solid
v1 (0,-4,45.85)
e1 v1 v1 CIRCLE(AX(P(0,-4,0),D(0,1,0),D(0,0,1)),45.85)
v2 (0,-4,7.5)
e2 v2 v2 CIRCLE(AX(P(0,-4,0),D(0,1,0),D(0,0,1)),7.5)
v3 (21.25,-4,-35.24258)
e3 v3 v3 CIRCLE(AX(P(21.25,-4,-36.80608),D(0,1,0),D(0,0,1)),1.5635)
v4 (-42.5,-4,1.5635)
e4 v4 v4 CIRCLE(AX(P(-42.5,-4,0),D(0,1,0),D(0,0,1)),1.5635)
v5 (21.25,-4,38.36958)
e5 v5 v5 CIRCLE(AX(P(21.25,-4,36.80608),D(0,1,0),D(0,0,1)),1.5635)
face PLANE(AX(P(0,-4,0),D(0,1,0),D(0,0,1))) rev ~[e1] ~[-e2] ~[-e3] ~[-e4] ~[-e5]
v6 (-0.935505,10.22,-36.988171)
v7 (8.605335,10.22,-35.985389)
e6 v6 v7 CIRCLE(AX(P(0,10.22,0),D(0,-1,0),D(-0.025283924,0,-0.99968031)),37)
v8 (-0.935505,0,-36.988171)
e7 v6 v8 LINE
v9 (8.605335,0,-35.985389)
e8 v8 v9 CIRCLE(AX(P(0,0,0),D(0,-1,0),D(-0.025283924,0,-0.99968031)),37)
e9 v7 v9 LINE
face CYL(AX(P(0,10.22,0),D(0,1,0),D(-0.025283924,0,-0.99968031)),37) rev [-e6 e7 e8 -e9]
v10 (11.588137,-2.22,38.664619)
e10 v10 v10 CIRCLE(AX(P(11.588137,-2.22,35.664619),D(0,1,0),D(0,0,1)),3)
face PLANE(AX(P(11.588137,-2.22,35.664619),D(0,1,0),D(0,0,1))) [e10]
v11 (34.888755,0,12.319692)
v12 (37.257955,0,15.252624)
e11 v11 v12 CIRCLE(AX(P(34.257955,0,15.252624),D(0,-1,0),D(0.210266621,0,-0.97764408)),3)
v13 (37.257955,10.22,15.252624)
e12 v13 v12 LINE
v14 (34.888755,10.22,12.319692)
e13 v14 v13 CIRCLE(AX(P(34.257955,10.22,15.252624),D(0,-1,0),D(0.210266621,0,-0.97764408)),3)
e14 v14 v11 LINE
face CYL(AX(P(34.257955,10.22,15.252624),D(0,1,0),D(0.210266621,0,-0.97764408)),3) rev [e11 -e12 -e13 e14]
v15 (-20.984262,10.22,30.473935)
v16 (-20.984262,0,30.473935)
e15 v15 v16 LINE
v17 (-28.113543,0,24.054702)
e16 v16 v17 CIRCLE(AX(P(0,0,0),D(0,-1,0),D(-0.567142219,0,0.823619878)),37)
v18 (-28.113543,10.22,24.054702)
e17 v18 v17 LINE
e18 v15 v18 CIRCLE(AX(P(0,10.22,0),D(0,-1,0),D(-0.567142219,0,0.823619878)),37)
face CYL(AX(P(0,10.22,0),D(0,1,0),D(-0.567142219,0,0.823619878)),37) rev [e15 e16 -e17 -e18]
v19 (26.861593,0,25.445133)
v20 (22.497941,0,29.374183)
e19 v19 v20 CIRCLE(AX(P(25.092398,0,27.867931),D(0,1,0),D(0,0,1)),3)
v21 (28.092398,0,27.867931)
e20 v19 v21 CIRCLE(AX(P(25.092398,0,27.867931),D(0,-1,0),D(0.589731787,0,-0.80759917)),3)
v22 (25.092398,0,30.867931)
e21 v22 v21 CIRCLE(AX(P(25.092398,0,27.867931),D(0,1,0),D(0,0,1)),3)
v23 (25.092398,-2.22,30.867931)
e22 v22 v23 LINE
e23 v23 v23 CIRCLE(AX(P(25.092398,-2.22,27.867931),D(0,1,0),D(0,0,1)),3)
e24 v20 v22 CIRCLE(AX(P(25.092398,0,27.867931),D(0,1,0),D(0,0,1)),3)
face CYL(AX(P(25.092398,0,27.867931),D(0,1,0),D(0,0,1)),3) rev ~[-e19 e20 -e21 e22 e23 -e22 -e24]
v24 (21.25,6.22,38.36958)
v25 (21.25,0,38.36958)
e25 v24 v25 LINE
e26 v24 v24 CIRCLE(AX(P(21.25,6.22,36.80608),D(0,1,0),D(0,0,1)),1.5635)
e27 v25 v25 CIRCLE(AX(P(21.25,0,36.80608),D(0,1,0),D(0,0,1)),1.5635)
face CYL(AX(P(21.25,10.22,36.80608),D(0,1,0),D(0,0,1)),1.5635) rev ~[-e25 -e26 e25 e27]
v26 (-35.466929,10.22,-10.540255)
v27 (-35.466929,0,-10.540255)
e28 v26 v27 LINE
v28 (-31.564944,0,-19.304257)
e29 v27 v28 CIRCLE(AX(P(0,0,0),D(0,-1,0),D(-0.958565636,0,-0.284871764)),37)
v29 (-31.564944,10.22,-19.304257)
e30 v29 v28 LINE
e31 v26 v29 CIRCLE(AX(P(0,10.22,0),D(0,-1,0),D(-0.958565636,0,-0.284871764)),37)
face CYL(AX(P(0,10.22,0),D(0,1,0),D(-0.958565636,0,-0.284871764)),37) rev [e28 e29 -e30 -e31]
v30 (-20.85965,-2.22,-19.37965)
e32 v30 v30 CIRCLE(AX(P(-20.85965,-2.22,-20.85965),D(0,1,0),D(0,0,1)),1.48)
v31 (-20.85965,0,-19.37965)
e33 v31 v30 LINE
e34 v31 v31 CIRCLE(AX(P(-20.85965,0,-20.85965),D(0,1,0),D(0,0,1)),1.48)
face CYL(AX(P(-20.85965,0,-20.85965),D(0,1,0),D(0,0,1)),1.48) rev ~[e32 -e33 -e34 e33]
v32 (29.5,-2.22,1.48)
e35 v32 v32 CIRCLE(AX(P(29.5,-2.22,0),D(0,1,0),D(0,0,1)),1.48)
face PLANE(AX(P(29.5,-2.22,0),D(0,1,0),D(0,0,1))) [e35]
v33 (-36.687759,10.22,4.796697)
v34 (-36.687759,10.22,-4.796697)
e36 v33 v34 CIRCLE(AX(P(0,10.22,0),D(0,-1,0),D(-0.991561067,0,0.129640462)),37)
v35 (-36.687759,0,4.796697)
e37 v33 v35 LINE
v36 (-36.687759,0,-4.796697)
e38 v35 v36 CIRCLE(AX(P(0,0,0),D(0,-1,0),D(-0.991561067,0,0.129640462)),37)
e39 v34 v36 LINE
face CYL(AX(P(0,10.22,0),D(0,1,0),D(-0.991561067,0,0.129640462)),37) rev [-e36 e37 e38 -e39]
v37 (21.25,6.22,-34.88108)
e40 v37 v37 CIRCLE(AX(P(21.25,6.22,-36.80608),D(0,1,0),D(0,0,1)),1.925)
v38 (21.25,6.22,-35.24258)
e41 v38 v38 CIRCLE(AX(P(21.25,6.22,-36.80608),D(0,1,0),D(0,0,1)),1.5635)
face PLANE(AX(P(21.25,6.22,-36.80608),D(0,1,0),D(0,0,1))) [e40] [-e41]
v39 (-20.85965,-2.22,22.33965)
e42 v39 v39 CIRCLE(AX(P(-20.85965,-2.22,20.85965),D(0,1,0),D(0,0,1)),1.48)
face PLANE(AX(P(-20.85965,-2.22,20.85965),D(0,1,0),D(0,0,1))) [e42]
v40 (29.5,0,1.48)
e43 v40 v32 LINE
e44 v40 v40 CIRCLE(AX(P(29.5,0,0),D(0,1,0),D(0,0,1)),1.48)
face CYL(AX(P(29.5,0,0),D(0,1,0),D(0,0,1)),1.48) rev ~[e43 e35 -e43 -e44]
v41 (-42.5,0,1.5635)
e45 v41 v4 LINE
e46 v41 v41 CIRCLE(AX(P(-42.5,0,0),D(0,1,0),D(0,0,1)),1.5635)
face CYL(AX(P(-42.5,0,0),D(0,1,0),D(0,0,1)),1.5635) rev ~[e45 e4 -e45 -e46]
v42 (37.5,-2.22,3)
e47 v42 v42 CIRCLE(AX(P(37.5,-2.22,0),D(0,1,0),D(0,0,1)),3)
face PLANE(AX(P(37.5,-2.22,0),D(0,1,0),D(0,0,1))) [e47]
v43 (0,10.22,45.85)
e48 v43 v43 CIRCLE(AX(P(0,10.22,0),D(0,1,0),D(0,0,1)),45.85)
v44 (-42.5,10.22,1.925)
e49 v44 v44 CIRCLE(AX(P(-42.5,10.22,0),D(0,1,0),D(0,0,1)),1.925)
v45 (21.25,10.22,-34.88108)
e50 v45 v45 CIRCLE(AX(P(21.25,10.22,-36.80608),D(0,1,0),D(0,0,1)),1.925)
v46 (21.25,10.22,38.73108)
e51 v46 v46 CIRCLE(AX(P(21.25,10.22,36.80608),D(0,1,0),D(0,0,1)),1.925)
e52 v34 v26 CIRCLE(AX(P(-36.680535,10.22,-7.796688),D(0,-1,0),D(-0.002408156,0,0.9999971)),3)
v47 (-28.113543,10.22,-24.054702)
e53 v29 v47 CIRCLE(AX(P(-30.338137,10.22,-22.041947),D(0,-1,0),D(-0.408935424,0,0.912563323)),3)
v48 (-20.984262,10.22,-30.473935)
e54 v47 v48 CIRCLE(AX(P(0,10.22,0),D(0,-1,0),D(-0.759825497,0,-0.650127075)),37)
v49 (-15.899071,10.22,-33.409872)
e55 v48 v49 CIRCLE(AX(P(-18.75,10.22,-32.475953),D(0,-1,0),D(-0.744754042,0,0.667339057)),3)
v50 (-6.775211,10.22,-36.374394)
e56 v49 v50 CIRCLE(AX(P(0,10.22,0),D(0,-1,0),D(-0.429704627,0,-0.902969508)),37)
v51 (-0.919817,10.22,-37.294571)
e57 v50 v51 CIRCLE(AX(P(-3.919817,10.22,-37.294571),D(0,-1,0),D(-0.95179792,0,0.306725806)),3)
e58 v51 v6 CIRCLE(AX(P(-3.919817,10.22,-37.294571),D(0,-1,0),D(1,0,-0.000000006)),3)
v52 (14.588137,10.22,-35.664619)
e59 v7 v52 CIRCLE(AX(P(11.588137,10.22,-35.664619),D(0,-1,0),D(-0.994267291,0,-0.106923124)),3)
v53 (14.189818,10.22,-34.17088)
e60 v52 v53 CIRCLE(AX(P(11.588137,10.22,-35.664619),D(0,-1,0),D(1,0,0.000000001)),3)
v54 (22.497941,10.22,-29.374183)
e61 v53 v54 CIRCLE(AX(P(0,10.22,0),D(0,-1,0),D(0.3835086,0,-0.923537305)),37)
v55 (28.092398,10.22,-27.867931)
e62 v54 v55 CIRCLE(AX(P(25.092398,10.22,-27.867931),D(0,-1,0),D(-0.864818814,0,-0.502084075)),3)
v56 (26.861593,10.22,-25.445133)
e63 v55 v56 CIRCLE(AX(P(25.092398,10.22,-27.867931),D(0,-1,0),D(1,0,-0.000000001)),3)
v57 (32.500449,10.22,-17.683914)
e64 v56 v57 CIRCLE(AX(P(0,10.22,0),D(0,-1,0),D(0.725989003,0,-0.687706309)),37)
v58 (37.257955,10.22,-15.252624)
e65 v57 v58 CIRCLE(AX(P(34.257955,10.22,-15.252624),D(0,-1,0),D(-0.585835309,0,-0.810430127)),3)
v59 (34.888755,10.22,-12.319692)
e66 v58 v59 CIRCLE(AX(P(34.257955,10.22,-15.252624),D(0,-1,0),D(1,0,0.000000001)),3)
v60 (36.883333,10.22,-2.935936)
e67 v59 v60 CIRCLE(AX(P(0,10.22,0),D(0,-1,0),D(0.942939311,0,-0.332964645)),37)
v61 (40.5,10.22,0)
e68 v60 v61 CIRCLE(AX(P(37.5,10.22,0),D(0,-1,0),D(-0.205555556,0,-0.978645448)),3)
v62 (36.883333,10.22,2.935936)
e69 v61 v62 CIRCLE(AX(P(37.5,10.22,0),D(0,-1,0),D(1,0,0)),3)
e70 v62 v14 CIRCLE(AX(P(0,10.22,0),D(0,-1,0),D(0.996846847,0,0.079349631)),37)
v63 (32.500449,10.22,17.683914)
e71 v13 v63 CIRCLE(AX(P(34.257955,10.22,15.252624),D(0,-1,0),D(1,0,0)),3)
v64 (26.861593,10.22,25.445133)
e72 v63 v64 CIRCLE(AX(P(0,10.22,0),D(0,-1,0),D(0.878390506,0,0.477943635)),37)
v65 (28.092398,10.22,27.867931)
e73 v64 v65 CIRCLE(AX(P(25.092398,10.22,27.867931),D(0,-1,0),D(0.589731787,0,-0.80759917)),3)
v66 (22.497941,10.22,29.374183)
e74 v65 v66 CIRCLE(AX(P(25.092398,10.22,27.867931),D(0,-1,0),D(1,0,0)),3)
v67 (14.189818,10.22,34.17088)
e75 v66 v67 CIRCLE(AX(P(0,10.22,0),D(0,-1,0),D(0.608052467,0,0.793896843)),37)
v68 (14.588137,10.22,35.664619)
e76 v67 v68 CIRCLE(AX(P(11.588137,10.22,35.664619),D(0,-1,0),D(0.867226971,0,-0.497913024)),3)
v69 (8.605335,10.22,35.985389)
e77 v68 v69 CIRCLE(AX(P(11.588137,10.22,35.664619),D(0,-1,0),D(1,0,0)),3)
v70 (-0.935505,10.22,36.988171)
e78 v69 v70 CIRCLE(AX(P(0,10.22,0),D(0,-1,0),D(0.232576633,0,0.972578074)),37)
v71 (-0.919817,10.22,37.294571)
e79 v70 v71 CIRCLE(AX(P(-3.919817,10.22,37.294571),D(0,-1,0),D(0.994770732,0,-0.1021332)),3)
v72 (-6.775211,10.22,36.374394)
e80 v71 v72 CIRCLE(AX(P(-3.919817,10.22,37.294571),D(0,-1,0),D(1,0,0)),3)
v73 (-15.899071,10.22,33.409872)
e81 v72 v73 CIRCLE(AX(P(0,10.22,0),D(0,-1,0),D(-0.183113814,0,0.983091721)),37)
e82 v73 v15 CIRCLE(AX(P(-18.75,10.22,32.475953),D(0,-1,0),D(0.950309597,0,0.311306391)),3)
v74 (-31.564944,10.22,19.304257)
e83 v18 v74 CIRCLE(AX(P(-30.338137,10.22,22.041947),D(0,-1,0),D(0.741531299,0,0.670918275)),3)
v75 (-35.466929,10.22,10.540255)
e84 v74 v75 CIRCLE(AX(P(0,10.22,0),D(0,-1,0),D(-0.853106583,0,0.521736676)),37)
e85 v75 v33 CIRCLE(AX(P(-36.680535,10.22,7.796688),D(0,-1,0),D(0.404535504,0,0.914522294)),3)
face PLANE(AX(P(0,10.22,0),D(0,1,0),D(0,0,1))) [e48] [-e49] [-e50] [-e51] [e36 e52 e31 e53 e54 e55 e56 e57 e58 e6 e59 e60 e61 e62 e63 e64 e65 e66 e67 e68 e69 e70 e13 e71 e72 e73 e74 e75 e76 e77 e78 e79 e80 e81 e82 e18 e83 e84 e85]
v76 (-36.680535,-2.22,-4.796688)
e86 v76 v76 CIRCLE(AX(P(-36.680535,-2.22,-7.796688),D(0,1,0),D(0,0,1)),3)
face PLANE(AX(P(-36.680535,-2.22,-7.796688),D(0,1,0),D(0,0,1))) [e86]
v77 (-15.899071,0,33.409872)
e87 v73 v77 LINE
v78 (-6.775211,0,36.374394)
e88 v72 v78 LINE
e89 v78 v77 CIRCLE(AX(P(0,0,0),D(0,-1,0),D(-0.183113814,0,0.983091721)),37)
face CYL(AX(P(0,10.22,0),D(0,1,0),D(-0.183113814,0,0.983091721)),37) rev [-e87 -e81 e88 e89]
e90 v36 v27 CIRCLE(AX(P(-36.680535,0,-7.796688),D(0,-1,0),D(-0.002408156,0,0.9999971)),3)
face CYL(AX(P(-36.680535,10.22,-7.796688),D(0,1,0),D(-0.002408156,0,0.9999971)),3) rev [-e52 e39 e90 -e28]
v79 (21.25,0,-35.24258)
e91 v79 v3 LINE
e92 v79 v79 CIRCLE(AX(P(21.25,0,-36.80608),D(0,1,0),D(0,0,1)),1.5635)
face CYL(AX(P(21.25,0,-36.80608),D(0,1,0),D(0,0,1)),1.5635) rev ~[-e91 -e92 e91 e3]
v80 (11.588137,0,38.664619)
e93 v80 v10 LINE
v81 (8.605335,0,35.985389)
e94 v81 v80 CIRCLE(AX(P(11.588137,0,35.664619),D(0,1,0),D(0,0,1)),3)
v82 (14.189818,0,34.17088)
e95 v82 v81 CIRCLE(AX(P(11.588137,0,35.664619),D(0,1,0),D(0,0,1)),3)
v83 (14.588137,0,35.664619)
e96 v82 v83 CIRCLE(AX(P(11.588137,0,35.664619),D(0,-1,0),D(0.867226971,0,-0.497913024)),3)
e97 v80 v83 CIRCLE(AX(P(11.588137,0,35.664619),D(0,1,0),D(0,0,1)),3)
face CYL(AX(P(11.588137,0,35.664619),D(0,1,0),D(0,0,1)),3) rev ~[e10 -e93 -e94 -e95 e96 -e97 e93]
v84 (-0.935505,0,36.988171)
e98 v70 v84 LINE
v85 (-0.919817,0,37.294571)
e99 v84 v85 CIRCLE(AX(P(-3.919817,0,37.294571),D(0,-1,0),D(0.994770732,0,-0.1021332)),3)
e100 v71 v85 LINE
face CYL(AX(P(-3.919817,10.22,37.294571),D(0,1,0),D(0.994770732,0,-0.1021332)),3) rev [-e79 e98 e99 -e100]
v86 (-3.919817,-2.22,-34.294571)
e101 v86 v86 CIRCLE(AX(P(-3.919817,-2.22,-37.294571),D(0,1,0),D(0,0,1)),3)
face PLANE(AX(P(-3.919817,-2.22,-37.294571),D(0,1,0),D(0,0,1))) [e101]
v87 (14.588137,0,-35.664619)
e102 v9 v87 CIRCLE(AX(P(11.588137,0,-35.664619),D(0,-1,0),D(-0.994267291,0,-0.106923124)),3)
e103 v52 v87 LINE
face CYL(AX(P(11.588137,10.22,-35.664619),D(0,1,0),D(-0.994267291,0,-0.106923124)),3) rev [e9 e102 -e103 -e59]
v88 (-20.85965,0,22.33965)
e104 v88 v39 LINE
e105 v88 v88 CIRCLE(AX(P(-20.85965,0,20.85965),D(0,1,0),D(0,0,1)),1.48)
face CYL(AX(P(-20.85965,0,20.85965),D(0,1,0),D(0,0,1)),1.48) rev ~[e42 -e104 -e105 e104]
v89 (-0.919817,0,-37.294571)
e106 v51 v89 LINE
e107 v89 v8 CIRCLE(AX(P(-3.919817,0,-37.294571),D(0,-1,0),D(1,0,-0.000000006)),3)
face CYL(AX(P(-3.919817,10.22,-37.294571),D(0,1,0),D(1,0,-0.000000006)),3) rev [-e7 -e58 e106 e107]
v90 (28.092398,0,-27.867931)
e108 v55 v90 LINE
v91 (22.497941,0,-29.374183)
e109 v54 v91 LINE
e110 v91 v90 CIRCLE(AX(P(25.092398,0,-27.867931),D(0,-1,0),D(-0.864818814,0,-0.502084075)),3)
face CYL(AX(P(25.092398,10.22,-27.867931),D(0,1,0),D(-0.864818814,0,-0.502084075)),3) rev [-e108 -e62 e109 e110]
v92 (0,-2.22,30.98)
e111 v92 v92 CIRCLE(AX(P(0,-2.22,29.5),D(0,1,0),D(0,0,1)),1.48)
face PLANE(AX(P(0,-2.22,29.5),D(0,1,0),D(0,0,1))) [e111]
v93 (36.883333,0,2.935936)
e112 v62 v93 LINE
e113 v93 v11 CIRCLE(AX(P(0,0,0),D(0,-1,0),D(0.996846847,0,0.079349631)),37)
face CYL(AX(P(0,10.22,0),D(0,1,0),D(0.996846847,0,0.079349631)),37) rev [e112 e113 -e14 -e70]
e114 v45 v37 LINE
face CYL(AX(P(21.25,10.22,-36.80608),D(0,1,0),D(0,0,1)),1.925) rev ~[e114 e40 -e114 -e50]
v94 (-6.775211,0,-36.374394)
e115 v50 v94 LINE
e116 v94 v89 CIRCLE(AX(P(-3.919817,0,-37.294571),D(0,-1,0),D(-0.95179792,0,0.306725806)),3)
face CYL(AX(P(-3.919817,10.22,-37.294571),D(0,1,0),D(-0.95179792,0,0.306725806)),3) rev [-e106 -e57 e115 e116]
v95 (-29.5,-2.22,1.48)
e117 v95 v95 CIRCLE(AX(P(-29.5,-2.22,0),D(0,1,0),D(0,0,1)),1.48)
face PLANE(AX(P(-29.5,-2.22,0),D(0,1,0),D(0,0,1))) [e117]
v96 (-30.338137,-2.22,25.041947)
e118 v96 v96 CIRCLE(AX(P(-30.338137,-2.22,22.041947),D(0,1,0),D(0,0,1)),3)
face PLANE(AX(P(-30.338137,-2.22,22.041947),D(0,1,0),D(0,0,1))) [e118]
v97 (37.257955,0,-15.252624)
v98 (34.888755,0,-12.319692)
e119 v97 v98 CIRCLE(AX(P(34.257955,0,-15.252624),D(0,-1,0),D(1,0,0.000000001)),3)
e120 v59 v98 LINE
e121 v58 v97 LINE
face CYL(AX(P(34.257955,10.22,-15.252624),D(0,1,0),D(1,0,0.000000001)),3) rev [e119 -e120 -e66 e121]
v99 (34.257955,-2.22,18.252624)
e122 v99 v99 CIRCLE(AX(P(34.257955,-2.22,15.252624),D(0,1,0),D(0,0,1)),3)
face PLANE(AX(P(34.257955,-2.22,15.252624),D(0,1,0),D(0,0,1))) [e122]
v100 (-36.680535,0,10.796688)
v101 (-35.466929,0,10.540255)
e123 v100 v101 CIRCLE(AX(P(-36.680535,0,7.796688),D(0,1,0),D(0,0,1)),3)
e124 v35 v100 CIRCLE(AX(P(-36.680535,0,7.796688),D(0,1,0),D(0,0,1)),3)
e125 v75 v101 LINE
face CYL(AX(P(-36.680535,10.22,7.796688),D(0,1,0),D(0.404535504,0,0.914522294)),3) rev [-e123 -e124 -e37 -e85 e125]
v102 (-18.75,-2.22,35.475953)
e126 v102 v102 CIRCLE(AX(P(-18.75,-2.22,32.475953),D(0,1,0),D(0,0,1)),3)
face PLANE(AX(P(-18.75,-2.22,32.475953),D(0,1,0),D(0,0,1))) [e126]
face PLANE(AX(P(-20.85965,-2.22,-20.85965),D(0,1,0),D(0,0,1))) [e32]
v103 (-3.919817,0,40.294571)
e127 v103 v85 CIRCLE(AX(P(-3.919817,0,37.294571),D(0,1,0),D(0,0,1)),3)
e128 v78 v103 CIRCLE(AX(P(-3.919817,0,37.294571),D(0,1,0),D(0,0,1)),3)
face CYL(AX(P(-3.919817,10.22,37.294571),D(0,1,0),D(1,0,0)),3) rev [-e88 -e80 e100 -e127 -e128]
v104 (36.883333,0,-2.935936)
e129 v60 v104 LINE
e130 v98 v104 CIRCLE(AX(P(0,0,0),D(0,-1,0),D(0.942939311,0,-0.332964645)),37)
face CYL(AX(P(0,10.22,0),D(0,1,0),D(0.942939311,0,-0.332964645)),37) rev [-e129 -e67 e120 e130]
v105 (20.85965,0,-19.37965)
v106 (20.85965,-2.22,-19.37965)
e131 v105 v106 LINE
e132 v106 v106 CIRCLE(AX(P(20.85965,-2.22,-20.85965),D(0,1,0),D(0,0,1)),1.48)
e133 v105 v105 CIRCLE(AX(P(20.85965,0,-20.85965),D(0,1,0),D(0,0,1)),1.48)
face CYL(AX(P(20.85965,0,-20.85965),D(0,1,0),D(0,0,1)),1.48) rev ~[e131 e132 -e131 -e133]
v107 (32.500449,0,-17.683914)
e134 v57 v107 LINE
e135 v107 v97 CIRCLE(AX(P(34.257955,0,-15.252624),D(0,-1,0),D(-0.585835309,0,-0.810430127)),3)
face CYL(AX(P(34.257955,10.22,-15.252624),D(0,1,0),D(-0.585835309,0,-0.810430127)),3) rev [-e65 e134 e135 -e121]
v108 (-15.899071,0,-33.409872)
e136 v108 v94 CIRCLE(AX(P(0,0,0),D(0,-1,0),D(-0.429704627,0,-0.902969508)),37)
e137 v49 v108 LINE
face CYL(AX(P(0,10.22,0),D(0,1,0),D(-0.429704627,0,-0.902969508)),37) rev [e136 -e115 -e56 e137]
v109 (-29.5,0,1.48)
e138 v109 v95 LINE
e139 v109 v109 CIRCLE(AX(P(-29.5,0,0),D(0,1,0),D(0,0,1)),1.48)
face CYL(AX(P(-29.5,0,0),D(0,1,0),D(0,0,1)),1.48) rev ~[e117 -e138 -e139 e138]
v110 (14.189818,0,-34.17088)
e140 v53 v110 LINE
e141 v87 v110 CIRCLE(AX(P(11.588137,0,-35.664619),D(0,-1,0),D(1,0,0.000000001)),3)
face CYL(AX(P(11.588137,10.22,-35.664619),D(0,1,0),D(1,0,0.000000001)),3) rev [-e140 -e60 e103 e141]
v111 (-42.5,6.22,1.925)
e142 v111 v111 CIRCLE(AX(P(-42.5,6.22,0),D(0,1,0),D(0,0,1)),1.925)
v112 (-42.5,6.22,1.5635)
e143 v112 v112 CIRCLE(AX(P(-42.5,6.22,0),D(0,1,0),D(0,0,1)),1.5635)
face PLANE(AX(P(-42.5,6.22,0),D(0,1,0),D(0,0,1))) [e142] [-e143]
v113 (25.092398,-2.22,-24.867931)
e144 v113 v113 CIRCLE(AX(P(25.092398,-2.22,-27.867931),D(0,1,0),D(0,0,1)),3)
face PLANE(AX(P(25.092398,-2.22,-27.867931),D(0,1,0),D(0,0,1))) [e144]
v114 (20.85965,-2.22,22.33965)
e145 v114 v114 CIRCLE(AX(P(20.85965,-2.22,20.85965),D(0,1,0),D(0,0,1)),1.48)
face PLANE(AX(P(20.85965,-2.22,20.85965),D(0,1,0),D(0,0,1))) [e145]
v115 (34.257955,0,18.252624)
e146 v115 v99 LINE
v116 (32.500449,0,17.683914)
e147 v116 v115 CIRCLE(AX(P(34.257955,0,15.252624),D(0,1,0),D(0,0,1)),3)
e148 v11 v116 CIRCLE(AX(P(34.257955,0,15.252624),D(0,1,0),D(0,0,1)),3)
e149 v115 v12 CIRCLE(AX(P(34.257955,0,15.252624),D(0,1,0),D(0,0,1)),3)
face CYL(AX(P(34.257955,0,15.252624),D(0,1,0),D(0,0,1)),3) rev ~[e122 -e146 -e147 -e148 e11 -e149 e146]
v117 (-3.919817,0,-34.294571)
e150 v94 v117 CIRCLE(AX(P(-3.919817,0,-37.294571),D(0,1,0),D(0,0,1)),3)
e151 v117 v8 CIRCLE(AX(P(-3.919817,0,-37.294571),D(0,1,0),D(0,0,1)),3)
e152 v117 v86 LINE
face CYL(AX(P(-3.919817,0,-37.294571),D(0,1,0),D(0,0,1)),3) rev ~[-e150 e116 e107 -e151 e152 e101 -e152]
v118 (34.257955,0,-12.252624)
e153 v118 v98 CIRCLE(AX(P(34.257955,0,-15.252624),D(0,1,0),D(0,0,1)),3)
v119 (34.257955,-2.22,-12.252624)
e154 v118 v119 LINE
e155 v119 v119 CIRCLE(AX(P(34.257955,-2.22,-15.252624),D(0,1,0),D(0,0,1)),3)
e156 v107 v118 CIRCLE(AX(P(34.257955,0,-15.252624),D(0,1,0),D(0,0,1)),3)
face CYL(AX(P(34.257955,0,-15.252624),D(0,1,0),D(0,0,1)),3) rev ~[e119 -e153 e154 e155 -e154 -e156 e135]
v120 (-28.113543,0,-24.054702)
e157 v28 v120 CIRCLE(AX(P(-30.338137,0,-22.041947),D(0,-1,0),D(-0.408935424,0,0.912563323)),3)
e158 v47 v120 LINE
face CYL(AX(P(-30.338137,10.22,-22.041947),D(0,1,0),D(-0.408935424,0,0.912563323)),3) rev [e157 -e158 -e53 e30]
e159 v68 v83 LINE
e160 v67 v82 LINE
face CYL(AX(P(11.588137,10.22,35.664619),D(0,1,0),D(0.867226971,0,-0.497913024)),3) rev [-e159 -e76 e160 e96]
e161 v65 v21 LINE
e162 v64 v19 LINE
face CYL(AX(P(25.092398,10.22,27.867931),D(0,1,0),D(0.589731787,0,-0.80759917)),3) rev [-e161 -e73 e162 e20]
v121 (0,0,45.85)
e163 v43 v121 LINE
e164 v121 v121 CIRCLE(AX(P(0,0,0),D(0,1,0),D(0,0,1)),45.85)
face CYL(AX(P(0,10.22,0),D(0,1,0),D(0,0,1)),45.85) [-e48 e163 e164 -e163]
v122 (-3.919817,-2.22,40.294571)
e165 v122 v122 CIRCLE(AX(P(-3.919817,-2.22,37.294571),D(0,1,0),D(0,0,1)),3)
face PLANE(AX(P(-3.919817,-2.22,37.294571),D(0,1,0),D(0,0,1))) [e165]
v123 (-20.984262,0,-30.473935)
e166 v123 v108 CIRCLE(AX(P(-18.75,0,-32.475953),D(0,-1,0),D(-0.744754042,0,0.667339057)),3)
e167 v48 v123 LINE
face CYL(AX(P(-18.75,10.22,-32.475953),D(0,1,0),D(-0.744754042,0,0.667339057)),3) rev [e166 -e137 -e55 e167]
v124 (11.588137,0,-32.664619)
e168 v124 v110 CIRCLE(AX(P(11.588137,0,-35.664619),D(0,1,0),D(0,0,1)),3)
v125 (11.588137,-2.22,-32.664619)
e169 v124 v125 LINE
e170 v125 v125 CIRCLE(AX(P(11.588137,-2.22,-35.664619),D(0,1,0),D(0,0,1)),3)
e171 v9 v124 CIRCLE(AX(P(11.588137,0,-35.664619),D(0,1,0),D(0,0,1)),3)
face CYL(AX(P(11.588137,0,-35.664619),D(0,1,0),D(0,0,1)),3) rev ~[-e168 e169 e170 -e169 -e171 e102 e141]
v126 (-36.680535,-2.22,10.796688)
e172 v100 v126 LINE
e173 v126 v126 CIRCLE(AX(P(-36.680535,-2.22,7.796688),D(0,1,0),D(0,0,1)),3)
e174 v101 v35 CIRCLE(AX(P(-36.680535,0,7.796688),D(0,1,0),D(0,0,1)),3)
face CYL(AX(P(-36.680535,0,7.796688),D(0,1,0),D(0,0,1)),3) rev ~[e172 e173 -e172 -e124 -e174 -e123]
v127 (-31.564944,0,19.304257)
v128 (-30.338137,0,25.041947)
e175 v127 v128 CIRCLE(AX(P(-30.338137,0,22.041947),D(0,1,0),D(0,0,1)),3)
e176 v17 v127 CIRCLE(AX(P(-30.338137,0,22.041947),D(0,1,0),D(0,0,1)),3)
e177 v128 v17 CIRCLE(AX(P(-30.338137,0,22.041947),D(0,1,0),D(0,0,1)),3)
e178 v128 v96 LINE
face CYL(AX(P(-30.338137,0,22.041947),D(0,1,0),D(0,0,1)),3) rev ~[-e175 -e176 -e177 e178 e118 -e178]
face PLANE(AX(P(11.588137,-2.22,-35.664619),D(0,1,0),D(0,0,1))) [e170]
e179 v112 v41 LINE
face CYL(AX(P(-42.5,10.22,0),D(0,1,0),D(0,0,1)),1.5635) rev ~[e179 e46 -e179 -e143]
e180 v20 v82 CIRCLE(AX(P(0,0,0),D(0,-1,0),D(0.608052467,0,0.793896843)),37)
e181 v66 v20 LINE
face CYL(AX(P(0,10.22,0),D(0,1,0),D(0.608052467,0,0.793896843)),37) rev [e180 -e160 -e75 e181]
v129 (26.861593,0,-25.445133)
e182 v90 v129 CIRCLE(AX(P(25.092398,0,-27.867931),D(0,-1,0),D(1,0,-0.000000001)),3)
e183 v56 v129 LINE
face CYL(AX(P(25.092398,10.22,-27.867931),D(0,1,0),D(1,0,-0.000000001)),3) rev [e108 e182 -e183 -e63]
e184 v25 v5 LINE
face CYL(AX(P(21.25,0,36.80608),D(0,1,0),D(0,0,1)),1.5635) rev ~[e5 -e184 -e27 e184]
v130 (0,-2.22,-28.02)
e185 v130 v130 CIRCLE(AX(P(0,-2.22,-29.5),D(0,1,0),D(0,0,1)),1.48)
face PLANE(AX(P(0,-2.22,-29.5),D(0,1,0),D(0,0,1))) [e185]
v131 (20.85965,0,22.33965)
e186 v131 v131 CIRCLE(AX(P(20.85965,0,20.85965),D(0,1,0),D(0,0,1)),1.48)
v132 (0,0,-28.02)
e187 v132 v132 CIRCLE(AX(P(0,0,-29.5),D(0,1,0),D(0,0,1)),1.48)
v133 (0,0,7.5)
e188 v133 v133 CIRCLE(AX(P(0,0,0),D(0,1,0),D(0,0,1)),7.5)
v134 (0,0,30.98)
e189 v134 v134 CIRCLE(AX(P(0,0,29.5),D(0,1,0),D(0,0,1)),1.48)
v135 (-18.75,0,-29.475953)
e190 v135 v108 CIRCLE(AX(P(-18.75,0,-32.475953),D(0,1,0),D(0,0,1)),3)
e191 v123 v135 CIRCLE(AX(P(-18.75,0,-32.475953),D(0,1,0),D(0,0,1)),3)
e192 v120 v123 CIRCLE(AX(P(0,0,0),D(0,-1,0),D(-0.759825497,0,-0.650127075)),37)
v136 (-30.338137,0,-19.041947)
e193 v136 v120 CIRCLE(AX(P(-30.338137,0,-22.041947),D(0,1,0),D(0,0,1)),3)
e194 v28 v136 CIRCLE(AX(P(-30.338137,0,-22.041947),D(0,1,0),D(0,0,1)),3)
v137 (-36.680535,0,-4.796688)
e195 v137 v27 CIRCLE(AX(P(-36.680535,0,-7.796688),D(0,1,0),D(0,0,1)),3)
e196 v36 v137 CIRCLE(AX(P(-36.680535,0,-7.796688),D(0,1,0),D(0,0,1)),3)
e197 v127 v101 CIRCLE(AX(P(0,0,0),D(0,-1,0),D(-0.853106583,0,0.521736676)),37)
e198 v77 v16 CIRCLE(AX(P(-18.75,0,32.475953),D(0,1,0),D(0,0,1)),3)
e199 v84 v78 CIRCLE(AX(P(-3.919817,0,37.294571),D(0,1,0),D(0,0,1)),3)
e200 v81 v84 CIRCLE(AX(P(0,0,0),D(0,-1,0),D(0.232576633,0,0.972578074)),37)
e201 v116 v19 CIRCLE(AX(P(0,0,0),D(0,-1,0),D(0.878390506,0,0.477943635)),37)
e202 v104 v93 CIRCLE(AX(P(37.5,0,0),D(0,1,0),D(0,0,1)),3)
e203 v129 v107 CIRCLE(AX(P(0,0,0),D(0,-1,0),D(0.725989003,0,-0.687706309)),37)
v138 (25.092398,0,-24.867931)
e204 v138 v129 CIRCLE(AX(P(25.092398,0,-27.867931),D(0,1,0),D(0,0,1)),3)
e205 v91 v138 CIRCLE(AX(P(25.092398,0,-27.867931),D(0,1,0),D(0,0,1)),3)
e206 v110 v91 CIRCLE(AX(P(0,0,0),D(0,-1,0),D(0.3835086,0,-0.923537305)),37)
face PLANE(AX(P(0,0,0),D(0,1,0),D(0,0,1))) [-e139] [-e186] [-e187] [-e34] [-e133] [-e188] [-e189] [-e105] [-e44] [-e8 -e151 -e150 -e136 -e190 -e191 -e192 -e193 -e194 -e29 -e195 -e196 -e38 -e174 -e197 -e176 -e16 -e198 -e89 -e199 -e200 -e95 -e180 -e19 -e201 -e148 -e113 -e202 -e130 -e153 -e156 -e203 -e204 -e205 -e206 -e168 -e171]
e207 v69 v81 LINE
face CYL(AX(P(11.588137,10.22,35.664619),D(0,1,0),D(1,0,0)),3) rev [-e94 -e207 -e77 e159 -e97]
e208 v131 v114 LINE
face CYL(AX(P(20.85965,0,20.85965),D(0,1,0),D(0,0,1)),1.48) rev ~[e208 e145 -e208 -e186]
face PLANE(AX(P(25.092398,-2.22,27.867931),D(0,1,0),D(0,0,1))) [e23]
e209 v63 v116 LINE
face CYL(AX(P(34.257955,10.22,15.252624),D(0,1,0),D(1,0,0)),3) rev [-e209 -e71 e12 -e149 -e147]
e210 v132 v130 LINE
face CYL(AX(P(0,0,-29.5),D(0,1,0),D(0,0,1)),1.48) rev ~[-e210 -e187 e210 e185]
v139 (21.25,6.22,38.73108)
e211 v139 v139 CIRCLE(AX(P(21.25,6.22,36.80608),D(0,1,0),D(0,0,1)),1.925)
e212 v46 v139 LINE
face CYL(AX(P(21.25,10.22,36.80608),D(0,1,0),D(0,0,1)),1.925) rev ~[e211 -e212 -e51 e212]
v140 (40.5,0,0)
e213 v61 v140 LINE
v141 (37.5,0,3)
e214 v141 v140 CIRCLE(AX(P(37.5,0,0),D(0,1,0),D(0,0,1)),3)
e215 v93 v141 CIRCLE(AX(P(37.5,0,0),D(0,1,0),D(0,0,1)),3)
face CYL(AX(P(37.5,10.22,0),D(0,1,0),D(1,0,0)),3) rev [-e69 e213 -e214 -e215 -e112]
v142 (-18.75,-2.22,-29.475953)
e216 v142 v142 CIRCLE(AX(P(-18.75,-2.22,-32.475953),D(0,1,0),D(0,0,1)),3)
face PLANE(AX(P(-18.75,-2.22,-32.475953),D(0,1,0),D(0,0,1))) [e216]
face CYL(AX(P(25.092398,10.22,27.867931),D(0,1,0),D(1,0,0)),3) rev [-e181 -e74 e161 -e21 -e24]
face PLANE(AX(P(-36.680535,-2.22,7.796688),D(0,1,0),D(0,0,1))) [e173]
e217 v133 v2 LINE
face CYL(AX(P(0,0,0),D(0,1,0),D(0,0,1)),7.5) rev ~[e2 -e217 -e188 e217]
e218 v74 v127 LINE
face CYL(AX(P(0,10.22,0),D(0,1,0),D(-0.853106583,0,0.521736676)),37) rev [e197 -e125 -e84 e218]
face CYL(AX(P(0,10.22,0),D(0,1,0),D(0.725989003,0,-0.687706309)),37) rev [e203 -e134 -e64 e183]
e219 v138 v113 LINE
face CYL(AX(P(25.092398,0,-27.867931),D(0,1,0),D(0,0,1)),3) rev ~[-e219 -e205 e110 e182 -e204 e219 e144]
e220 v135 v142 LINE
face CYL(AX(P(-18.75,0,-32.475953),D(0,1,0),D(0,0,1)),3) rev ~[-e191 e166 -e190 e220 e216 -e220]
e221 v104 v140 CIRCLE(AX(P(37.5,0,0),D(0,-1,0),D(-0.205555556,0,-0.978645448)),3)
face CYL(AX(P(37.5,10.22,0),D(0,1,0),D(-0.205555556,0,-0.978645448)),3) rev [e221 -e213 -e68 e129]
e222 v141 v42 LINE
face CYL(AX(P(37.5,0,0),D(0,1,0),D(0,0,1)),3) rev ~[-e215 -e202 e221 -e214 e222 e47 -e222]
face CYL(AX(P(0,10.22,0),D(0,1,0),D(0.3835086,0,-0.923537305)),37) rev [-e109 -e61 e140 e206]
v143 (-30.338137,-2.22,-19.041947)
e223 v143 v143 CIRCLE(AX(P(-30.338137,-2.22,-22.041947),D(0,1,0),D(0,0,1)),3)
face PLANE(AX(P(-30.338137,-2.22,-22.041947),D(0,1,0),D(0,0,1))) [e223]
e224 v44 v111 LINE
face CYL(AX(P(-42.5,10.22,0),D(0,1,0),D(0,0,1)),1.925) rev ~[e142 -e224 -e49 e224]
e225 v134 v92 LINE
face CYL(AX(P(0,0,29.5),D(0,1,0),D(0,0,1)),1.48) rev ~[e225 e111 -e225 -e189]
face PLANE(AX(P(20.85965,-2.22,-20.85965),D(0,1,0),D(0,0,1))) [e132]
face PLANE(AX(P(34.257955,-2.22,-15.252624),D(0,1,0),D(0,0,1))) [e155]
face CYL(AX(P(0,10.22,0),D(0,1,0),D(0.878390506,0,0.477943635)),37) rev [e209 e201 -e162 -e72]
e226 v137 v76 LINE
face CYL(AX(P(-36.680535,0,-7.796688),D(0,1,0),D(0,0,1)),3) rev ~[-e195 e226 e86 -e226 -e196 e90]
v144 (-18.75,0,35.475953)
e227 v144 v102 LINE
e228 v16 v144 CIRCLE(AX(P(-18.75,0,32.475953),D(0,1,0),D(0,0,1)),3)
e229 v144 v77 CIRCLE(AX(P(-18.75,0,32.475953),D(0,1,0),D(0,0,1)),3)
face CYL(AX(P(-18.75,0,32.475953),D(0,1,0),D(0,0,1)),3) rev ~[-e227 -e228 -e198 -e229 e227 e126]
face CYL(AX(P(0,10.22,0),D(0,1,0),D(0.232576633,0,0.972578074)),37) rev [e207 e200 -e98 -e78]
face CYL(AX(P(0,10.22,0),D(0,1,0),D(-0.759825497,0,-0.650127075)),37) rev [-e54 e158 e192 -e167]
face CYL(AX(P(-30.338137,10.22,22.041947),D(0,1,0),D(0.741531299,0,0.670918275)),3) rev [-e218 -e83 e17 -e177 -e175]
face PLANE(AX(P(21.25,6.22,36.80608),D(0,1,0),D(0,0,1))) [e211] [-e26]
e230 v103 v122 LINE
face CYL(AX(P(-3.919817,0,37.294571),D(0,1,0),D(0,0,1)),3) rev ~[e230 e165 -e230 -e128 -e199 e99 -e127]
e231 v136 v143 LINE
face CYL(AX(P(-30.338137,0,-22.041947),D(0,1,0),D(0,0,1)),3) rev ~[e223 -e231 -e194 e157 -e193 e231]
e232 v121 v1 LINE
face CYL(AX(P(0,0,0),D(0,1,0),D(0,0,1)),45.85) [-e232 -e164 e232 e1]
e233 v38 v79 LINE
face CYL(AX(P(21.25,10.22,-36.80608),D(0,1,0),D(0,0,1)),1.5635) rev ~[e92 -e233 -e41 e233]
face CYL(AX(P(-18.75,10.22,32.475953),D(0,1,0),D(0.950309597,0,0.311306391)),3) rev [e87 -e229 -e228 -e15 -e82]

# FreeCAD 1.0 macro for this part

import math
import FreeCAD as App
import Part
import Sketcher
from FreeCAD import Vector
Q = App.Units.Quantity

doc = App.newDocument("Part")
body = doc.addObject("PartDesign::Body", "Body")

# Sketch on XZ plane
sketch1 = body.newObject("Sketcher::SketchObject", "Sketch")
sketch1.AttachmentSupport = (doc.getObject("XZ_Plane"), [""])
sketch1.MapMode = "FlatFace"
sketch1.addGeometry([
    Part.Circle(Vector(0, 0, 0), Vector(0, 0, 1), 45.9),  # 0
    Part.Circle(Vector(-42.5, 0, 0), Vector(0, 0, 1), 1.6),  # 1
    Part.Circle(Vector(21.2, -36.8, 0), Vector(0, 0, 1), 1.6),  # 2
    Part.Circle(Vector(0, 0, 0), Vector(0, 0, 1), 7.5),  # 3
    Part.Circle(Vector(21.2, 36.8, 0), Vector(0, 0, 1), 1.6),  # 4
], False)
sketch1.addConstraint([
    Sketcher.Constraint("Coincident", 0, 3, -1, 1),
    Sketcher.Constraint("Coincident", 3, 3, -1, 1),
    Sketcher.Constraint("Equal", 1, 2),
    Sketcher.Constraint("Equal", 2, 4),
    Sketcher.Constraint("Symmetric", 2, 3, 4, 3, -1),
    Sketcher.Constraint("PointOnObject", 1, 3, -1),
    Sketcher.Constraint("Diameter", 3, Q("15 mm")),
    Sketcher.Constraint("Diameter", 0, Q("91.7 mm")),
    Sketcher.Constraint("Diameter", 1, Q("3.127 mm")),
    Sketcher.Constraint("DistanceX", 1, 3, -1, 1, Q("42.5 mm")),
    Sketcher.Constraint("DistanceX", -1, 1, 2, 3, Q("21.25 mm")),
    Sketcher.Constraint("DistanceY", 2, 3, -1, 1, Q("36.80608 mm")),
])
pad1 = body.newObject("PartDesign::Pad", "Pad")
pad1.Profile = sketch1
pad1.Length = 4

# Sketch on XZ plane
sketch2 = body.newObject("Sketcher::SketchObject", "Sketch001")
sketch2.AttachmentSupport = (doc.getObject("XZ_Plane"), [""])
sketch2.MapMode = "FlatFace"
sketch2.addGeometry([
    Part.Circle(Vector(-29.5, 0, 0), Vector(0, 0, 1), 1.5),  # 0
    Part.Circle(Vector(-20.9, -20.9, 0), Vector(0, 0, 1), 1.5),  # 1
    Part.Circle(Vector(0, -29.5, 0), Vector(0, 0, 1), 1.5),  # 2
    Part.Circle(Vector(20.9, -20.9, 0), Vector(0, 0, 1), 1.5),  # 3
    Part.Circle(Vector(29.5, 0, 0), Vector(0, 0, 1), 1.5),  # 4
    Part.Circle(Vector(20.9, 20.9, 0), Vector(0, 0, 1), 1.5),  # 5
    Part.Circle(Vector(0, 29.5, 0), Vector(0, 0, 1), 1.5),  # 6
    Part.Circle(Vector(-20.9, 20.9, 0), Vector(0, 0, 1), 1.5),  # 7
    Part.Circle(Vector(-36.7, -7.8, 0), Vector(0, 0, 1), 3),  # 8
    Part.Circle(Vector(-36.7, 7.8, 0), Vector(0, 0, 1), 3),  # 9
    Part.Circle(Vector(-30.3, -22, 0), Vector(0, 0, 1), 3),  # 10
    Part.Circle(Vector(-30.3, 22, 0), Vector(0, 0, 1), 3),  # 11
    Part.Circle(Vector(-18.8, 32.5, 0), Vector(0, 0, 1), 3),  # 12
    Part.Circle(Vector(-3.9, 37.3, 0), Vector(0, 0, 1), 3),  # 13
    Part.Circle(Vector(11.6, 35.7, 0), Vector(0, 0, 1), 3),  # 14
    Part.Circle(Vector(25.1, 27.9, 0), Vector(0, 0, 1), 3),  # 15
    Part.Circle(Vector(34.3, 15.3, 0), Vector(0, 0, 1), 3),  # 16
    Part.Circle(Vector(37.5, 0, 0), Vector(0, 0, 1), 3),  # 17
    Part.Circle(Vector(34.3, -15.3, 0), Vector(0, 0, 1), 3),  # 18
    Part.Circle(Vector(25.1, -27.9, 0), Vector(0, 0, 1), 3),  # 19
    Part.Circle(Vector(11.6, -35.7, 0), Vector(0, 0, 1), 3),  # 20
    Part.Circle(Vector(-3.9, -37.3, 0), Vector(0, 0, 1), 3),  # 21
    Part.Circle(Vector(-18.8, -32.5, 0), Vector(0, 0, 1), 3),  # 22
], False)
sketch2.addConstraint([
    Sketcher.Constraint("Equal", 0, 1),
    Sketcher.Constraint("Equal", 1, 2),
    Sketcher.Constraint("Equal", 2, 3),
    Sketcher.Constraint("Equal", 3, 4),
    Sketcher.Constraint("Equal", 4, 5),
    Sketcher.Constraint("Equal", 5, 6),
    Sketcher.Constraint("Equal", 6, 7),
    Sketcher.Constraint("Equal", 8, 9),
    Sketcher.Constraint("Equal", 9, 10),
    Sketcher.Constraint("Equal", 10, 11),
    Sketcher.Constraint("Equal", 11, 12),
    Sketcher.Constraint("Equal", 12, 13),
    Sketcher.Constraint("Equal", 13, 14),
    Sketcher.Constraint("Equal", 14, 15),
    Sketcher.Constraint("Equal", 15, 16),
    Sketcher.Constraint("Equal", 16, 17),
    Sketcher.Constraint("Equal", 17, 18),
    Sketcher.Constraint("Equal", 18, 19),
    Sketcher.Constraint("Equal", 19, 20),
    Sketcher.Constraint("Equal", 20, 21),
    Sketcher.Constraint("Equal", 21, 22),
    Sketcher.Constraint("Symmetric", 0, 3, 4, 3, -1, 1),
    Sketcher.Constraint("Symmetric", 1, 3, 5, 3, -1, 1),
    Sketcher.Constraint("Symmetric", 2, 3, 6, 3, -1, 1),
    Sketcher.Constraint("Symmetric", 3, 3, 7, 3, -1, 1),
    Sketcher.Constraint("Symmetric", 1, 3, 3, 3, -2),
    Sketcher.Constraint("Symmetric", 8, 3, 9, 3, -1),
    Sketcher.Constraint("Symmetric", 10, 3, 11, 3, -1),
    Sketcher.Constraint("Symmetric", 16, 3, 18, 3, -1),
    Sketcher.Constraint("Symmetric", 15, 3, 19, 3, -1),
    Sketcher.Constraint("Symmetric", 14, 3, 20, 3, -1),
    Sketcher.Constraint("Symmetric", 13, 3, 21, 3, -1),
    Sketcher.Constraint("Symmetric", 12, 3, 22, 3, -1),
    Sketcher.Constraint("PointOnObject", 0, 3, -1),
    Sketcher.Constraint("PointOnObject", 2, 3, -2),
    Sketcher.Constraint("PointOnObject", 17, 3, -1),
    Sketcher.Constraint("Diameter", 8, Q("6 mm")),
    Sketcher.Constraint("Diameter", 0, Q("2.96 mm")),
    Sketcher.Constraint("DistanceX", 0, 3, 4, 3, Q("59 mm")),
    Sketcher.Constraint("DistanceX", 4, 3, 17, 3, Q("8 mm")),
    Sketcher.Constraint("DistanceY", 2, 3, -1, 1, Q("29.5 mm")),
    Sketcher.Constraint("DistanceX", 12, 3, -1, 1, Q("18.75 mm")),
    Sketcher.Constraint("DistanceX", 1, 3, 3, 3, Q("41.7193 mm")),
    Sketcher.Constraint("DistanceY", 3, 3, 5, 3, Q("41.7193 mm")),
    Sketcher.Constraint("DistanceY", 8, 3, -1, 1, Q("7.796688 mm")),
    Sketcher.Constraint("DistanceY", -1, 1, 13, 3, Q("37.294571 mm")),
    Sketcher.Constraint("DistanceY", -1, 1, 14, 3, Q("35.664619 mm")),
    Sketcher.Constraint("DistanceY", -1, 1, 15, 3, Q("27.867931 mm")),
    Sketcher.Constraint("DistanceY", 10, 3, 8, 3, Q("14.245259 mm")),
    Sketcher.Constraint("DistanceY", 12, 3, 13, 3, Q("4.818618 mm")),
    Sketcher.Constraint("DistanceX", 11, 3, 13, 3, Q("26.41832 mm")),
    Sketcher.Constraint("DistanceX", 14, 3, 15, 3, Q("13.50426 mm")),
    Sketcher.Constraint("DistanceY", 18, 3, 16, 3, Q("30.505248 mm")),
    Sketcher.Constraint("DistanceX", 8, 3, -1, 1, Q("36.680535 mm")),
    Sketcher.Constraint("DistanceX", 10, 3, -1, 1, Q("30.338137 mm")),
    Sketcher.Constraint("DistanceX", -1, 1, 14, 3, Q("11.588137 mm")),
    Sketcher.Constraint("DistanceX", -1, 1, 16, 3, Q("34.257955 mm")),
])
pocket1 = body.newObject("PartDesign::Pocket", "Pocket")
pocket1.Profile = sketch2
pocket1.Length = 2.22
pocket1.Reversed = True

# Sketch on XZ plane
sketch3 = body.newObject("Sketcher::SketchObject", "Sketch002")
sketch3.AttachmentSupport = (doc.getObject("XZ_Plane"), [""])
sketch3.MapMode = "FlatFace"
sketch3.AttachmentOffset = App.Placement(Vector(0, 0, -10.22), App.Rotation())
sketch3.addGeometry([
    Part.Circle(Vector(0, 0, 0), Vector(0, 0, 1), 45.85),  # 0
    Part.Circle(Vector(-42.5, 0, 0), Vector(0, 0, 1), 1.56),  # 1
    Part.Circle(Vector(21.25, -36.81, 0), Vector(0, 0, 1), 1.56),  # 2
    Part.ArcOfCircle(Part.Circle(Vector(0, 0, 0), Vector(0, 0, 1), 37), math.radians(-19.45), math.radians(-4.55)),  # 3
    Part.ArcOfCircle(Part.Circle(Vector(37.5, 0, 0), Vector(0, 0, 1), 3), math.radians(-102), math.radians(0)),  # 4
    Part.ArcOfCircle(Part.Circle(Vector(37.5, 0, 0), Vector(0, 0, 1), 3), math.radians(0), math.radians(102)),  # 5
    Part.ArcOfCircle(Part.Circle(Vector(0, 0, 0), Vector(0, 0, 1), 37), math.radians(4.55), math.radians(19.45)),  # 6
    Part.ArcOfCircle(Part.Circle(Vector(34.26, 15.25, 0), Vector(0, 0, 1), 3), math.radians(-78), math.radians(0)),  # 7
    Part.ArcOfCircle(Part.Circle(Vector(34.26, 15.25, 0), Vector(0, 0, 1), 3), math.radians(0), math.radians(126)),  # 8
    Part.ArcOfCircle(Part.Circle(Vector(0, 0, 0), Vector(0, 0, 1), 37), math.radians(28.55), math.radians(43.45)),  # 9
    Part.ArcOfCircle(Part.Circle(Vector(25.09, 27.87, 0), Vector(0, 0, 1), 3), math.radians(-54), math.radians(0)),  # 10
    Part.ArcOfCircle(Part.Circle(Vector(25.09, 27.87, 0), Vector(0, 0, 1), 3), math.radians(0), math.radians(150)),  # 11
    Part.ArcOfCircle(Part.Circle(Vector(0, 0, 0), Vector(0, 0, 1), 37), math.radians(52.55), math.radians(67.45)),  # 12
    Part.ArcOfCircle(Part.Circle(Vector(11.59, 35.66, 0), Vector(0, 0, 1), 3), math.radians(-30), math.radians(0)),  # 13
    Part.ArcOfCircle(Part.Circle(Vector(11.59, 35.66, 0), Vector(0, 0, 1), 3), math.radians(0), math.radians(174)),  # 14
    Part.ArcOfCircle(Part.Circle(Vector(0, 0, 0), Vector(0, 0, 1), 37), math.radians(76.55), math.radians(91.45)),  # 15
    Part.ArcOfCircle(Part.Circle(Vector(-3.92, 37.29, 0), Vector(0, 0, 1), 3), math.radians(-5.86), math.radians(0)),  # 16
    Part.ArcOfCircle(Part.Circle(Vector(-3.92, 37.29, 0), Vector(0, 0, 1), 3), math.radians(0), math.radians(198)),  # 17
    Part.ArcOfCircle(Part.Circle(Vector(0, 0, 0), Vector(0, 0, 1), 37), math.radians(100.55), math.radians(115.45)),  # 18
    Part.ArcOfCircle(Part.Circle(Vector(-18.75, 32.48, 0), Vector(0, 0, 1), 3), math.radians(18), math.radians(222)),  # 19
    Part.ArcOfCircle(Part.Circle(Vector(0, 0, 0), Vector(0, 0, 1), 37), math.radians(124.55), math.radians(139.45)),  # 20
    Part.ArcOfCircle(Part.Circle(Vector(-30.34, 22.04, 0), Vector(0, 0, 1), 3), math.radians(42), math.radians(246)),  # 21
    Part.ArcOfCircle(Part.Circle(Vector(0, 0, 0), Vector(0, 0, 1), 37), math.radians(148.55), math.radians(163.45)),  # 22
    Part.ArcOfCircle(Part.Circle(Vector(-36.68, 7.8, 0), Vector(0, 0, 1), 3), math.radians(66), math.radians(270)),  # 23
    Part.ArcOfCircle(Part.Circle(Vector(0, 0, 0), Vector(0, 0, 1), 37), math.radians(172.55), math.radians(187.45)),  # 24
    Part.ArcOfCircle(Part.Circle(Vector(-36.68, -7.8, 0), Vector(0, 0, 1), 3), math.radians(90), math.radians(294)),  # 25
    Part.ArcOfCircle(Part.Circle(Vector(0, 0, 0), Vector(0, 0, 1), 37), math.radians(-163.45), math.radians(-148.55)),  # 26
    Part.ArcOfCircle(Part.Circle(Vector(-30.34, -22.04, 0), Vector(0, 0, 1), 3), math.radians(114), math.radians(318)),  # 27
    Part.ArcOfCircle(Part.Circle(Vector(0, 0, 0), Vector(0, 0, 1), 37), math.radians(-139.45), math.radians(-124.55)),  # 28
    Part.ArcOfCircle(Part.Circle(Vector(-18.75, -32.48, 0), Vector(0, 0, 1), 3), math.radians(138), math.radians(342)),  # 29
    Part.ArcOfCircle(Part.Circle(Vector(0, 0, 0), Vector(0, 0, 1), 37), math.radians(-115.45), math.radians(-100.55)),  # 30
    Part.ArcOfCircle(Part.Circle(Vector(-3.92, -37.29, 0), Vector(0, 0, 1), 3), math.radians(162), math.radians(360)),  # 31
    Part.ArcOfCircle(Part.Circle(Vector(-3.92, -37.29, 0), Vector(0, 0, 1), 3), math.radians(0), math.radians(5.86)),  # 32
    Part.ArcOfCircle(Part.Circle(Vector(0, 0, 0), Vector(0, 0, 1), 37), math.radians(-91.45), math.radians(-76.55)),  # 33
    Part.ArcOfCircle(Part.Circle(Vector(11.59, -35.66, 0), Vector(0, 0, 1), 3), math.radians(-174), math.radians(0)),  # 34
    Part.ArcOfCircle(Part.Circle(Vector(11.59, -35.66, 0), Vector(0, 0, 1), 3), math.radians(0), math.radians(30)),  # 35
    Part.ArcOfCircle(Part.Circle(Vector(0, 0, 0), Vector(0, 0, 1), 37), math.radians(-67.45), math.radians(-52.55)),  # 36
    Part.ArcOfCircle(Part.Circle(Vector(25.09, -27.87, 0), Vector(0, 0, 1), 3), math.radians(-150), math.radians(0)),  # 37
    Part.ArcOfCircle(Part.Circle(Vector(25.09, -27.87, 0), Vector(0, 0, 1), 3), math.radians(0), math.radians(54)),  # 38
    Part.ArcOfCircle(Part.Circle(Vector(0, 0, 0), Vector(0, 0, 1), 37), math.radians(-43.45), math.radians(-28.55)),  # 39
    Part.ArcOfCircle(Part.Circle(Vector(34.26, -15.25, 0), Vector(0, 0, 1), 3), math.radians(-126), math.radians(0)),  # 40
    Part.ArcOfCircle(Part.Circle(Vector(34.26, -15.25, 0), Vector(0, 0, 1), 3), math.radians(0), math.radians(78)),  # 41
    Part.Circle(Vector(21.25, 36.81, 0), Vector(0, 0, 1), 1.56),  # 42
], False)
sketch3.addConstraint([
    Sketcher.Constraint("Coincident", 3, 2, 4, 1),
    Sketcher.Constraint("Tangent", 4, 2, 5, 1),
    Sketcher.Constraint("Coincident", 5, 2, 6, 1),
    Sketcher.Constraint("Coincident", 6, 2, 7, 1),
    Sketcher.Constraint("Tangent", 7, 2, 8, 1),
    Sketcher.Constraint("Coincident", 8, 2, 9, 1),
    Sketcher.Constraint("Coincident", 9, 2, 10, 1),
    Sketcher.Constraint("Tangent", 10, 2, 11, 1),
    Sketcher.Constraint("Coincident", 11, 2, 12, 1),
    Sketcher.Constraint("Coincident", 12, 2, 13, 1),
    Sketcher.Constraint("Tangent", 13, 2, 14, 1),
    Sketcher.Constraint("Coincident", 14, 2, 15, 1),
    Sketcher.Constraint("Coincident", 15, 2, 16, 1),
    Sketcher.Constraint("Tangent", 16, 2, 17, 1),
    Sketcher.Constraint("Coincident", 17, 2, 18, 1),
    Sketcher.Constraint("Coincident", 18, 2, 19, 1),
    Sketcher.Constraint("Coincident", 19, 2, 20, 1),
    Sketcher.Constraint("Coincident", 20, 2, 21, 1),
    Sketcher.Constraint("Coincident", 21, 2, 22, 1),
    Sketcher.Constraint("Coincident", 22, 2, 23, 1),
    Sketcher.Constraint("Coincident", 23, 2, 24, 1),
    Sketcher.Constraint("Coincident", 24, 2, 25, 1),
    Sketcher.Constraint("Coincident", 25, 2, 26, 1),
    Sketcher.Constraint("Coincident", 26, 2, 27, 1),
    Sketcher.Constraint("Coincident", 27, 2, 28, 1),
    Sketcher.Constraint("Coincident", 28, 2, 29, 1),
    Sketcher.Constraint("Coincident", 29, 2, 30, 1),
    Sketcher.Constraint("Coincident", 30, 2, 31, 1),
    Sketcher.Constraint("Tangent", 31, 2, 32, 1),
    Sketcher.Constraint("Coincident", 32, 2, 33, 1),
    Sketcher.Constraint("Coincident", 33, 2, 34, 1),
    Sketcher.Constraint("Tangent", 34, 2, 35, 1),
    Sketcher.Constraint("Coincident", 35, 2, 36, 1),
    Sketcher.Constraint("Coincident", 36, 2, 37, 1),
    Sketcher.Constraint("Tangent", 37, 2, 38, 1),
    Sketcher.Constraint("Coincident", 38, 2, 39, 1),
    Sketcher.Constraint("Coincident", 39, 2, 40, 1),
    Sketcher.Constraint("Tangent", 40, 2, 41, 1),
    Sketcher.Constraint("Coincident", 41, 2, 3, 1),
    Sketcher.Constraint("Coincident", 0, 3, -1, 1),
    Sketcher.Constraint("Coincident", 3, 3, -1, 1),
    Sketcher.Constraint("Coincident", 6, 3, -1, 1),
    Sketcher.Constraint("Coincident", 9, 3, -1, 1),
    Sketcher.Constraint("Coincident", 12, 3, -1, 1),
    Sketcher.Constraint("Coincident", 15, 3, -1, 1),
    Sketcher.Constraint("Coincident", 18, 3, -1, 1),
    Sketcher.Constraint("Coincident", 20, 3, -1, 1),
    Sketcher.Constraint("Coincident", 22, 3, -1, 1),
    Sketcher.Constraint("Coincident", 24, 3, -1, 1),
    Sketcher.Constraint("Coincident", 26, 3, -1, 1),
    Sketcher.Constraint("Coincident", 28, 3, -1, 1),
    Sketcher.Constraint("Coincident", 30, 3, -1, 1),
    Sketcher.Constraint("Coincident", 33, 3, -1, 1),
    Sketcher.Constraint("Coincident", 36, 3, -1, 1),
    Sketcher.Constraint("Coincident", 39, 3, -1, 1),
    Sketcher.Constraint("Equal", 1, 2),
    Sketcher.Constraint("Equal", 4, 5),
    Sketcher.Constraint("Equal", 3, 6),
    Sketcher.Constraint("Equal", 5, 7),
    Sketcher.Constraint("Equal", 7, 8),
    Sketcher.Constraint("Equal", 6, 9),
    Sketcher.Constraint("Equal", 8, 10),
    Sketcher.Constraint("Equal", 10, 11),
    Sketcher.Constraint("Equal", 9, 12),
    Sketcher.Constraint("Equal", 11, 13),
    Sketcher.Constraint("Equal", 13, 14),
    Sketcher.Constraint("Equal", 12, 15),
    Sketcher.Constraint("Equal", 14, 16),
    Sketcher.Constraint("Equal", 16, 17),
    Sketcher.Constraint("Equal", 15, 18),
    Sketcher.Constraint("Equal", 17, 19),
    Sketcher.Constraint("Equal", 18, 20),
    Sketcher.Constraint("Equal", 19, 21),
    Sketcher.Constraint("Equal", 20, 22),
    Sketcher.Constraint("Equal", 21, 23),
    Sketcher.Constraint("Equal", 22, 24),
    Sketcher.Constraint("Equal", 23, 25),
    Sketcher.Constraint("Equal", 24, 26),
    Sketcher.Constraint("Equal", 25, 27),
    Sketcher.Constraint("Equal", 26, 28),
    Sketcher.Constraint("Equal", 27, 29),
    Sketcher.Constraint("Equal", 28, 30),
    Sketcher.Constraint("Equal", 29, 31),
    Sketcher.Constraint("Equal", 31, 32),
    Sketcher.Constraint("Equal", 30, 33),
    Sketcher.Constraint("Equal", 32, 34),
    Sketcher.Constraint("Equal", 34, 35),
    Sketcher.Constraint("Equal", 33, 36),
    Sketcher.Constraint("Equal", 35, 37),
    Sketcher.Constraint("Equal", 37, 38),
    Sketcher.Constraint("Equal", 36, 39),
    Sketcher.Constraint("Equal", 38, 40),
    Sketcher.Constraint("Equal", 40, 41),
    Sketcher.Constraint("Equal", 2, 42),
    Sketcher.Constraint("Symmetric", 23, 3, 25, 3, -1),
    Sketcher.Constraint("Symmetric", 21, 3, 27, 3, -1),
    Sketcher.Constraint("Symmetric", 19, 3, 29, 3, -1),
    Sketcher.Constraint("Symmetric", 16, 3, 31, 3, -1),
    Sketcher.Constraint("Symmetric", 13, 3, 34, 3, -1),
    Sketcher.Constraint("Symmetric", 10, 3, 37, 3, -1),
    Sketcher.Constraint("Symmetric", 7, 3, 40, 3, -1),
    Sketcher.Constraint("Symmetric", 2, 3, 42, 3, -1),
    Sketcher.Constraint("PointOnObject", 1, 3, -1),
    Sketcher.Constraint("PointOnObject", 4, 3, -1),
    Sketcher.Constraint("PointOnObject", 4, 2, -1),
    Sketcher.Constraint("Horizontal", 8, 3, 7, 2),
    Sketcher.Constraint("Horizontal", 11, 3, 10, 2),
    Sketcher.Constraint("Horizontal", 14, 3, 13, 2),
    Sketcher.Constraint("Horizontal", 17, 3, 16, 2),
    Sketcher.Constraint("Horizontal", 32, 3, 31, 2),
    Sketcher.Constraint("Horizontal", 35, 3, 34, 2),
    Sketcher.Constraint("Horizontal", 38, 3, 37, 2),
    Sketcher.Constraint("Horizontal", 41, 3, 40, 2),
    Sketcher.Constraint("Radius", 3, Q("37 mm")),
    Sketcher.Constraint("Radius", 4, Q("3 mm")),
    Sketcher.Constraint("Diameter", 0, Q("91.7 mm")),
    Sketcher.Constraint("Diameter", 1, Q("3.127 mm")),
    Sketcher.Constraint("DistanceX", 1, 3, -1, 1, Q("42.5 mm")),
    Sketcher.Constraint("DistanceX", -1, 1, 4, 3, Q("37.5 mm")),
    Sketcher.Constraint("DistanceX", -1, 1, 2, 3, Q("21.25 mm")),
    Sketcher.Constraint("DistanceX", 19, 3, -1, 1, Q("18.75 mm")),
    Sketcher.Constraint("DistanceY", -1, 1, 20, 2, Q("24.054702 mm")),
    Sketcher.Constraint("DistanceY", 2, 3, -1, 1, Q("36.80608 mm")),
    Sketcher.Constraint("DistanceY", -1, 1, 10, 3, Q("27.867931 mm")),
    Sketcher.Constraint("DistanceY", -1, 1, 13, 3, Q("35.664619 mm")),
    Sketcher.Constraint("DistanceY", -1, 1, 16, 3, Q("37.294571 mm")),
    Sketcher.Constraint("DistanceY", -1, 1, 23, 3, Q("7.796688 mm")),
    Sketcher.Constraint("DistanceY", -1, 1, 6, 2, Q("12.319692 mm")),
    Sketcher.Constraint("DistanceX", -1, 1, 8, 2, Q("32.500449 mm")),
    Sketcher.Constraint("DistanceX", -1, 1, 11, 2, Q("22.497941 mm")),
    Sketcher.Constraint("DistanceX", -1, 1, 12, 2, Q("14.189818 mm")),
    Sketcher.Constraint("DistanceY", -1, 1, 15, 2, Q("36.988171 mm")),
    Sketcher.Constraint("DistanceX", 18, 2, -1, 1, Q("15.899071 mm")),
    Sketcher.Constraint("DistanceX", 22, 2, -1, 1, Q("35.466929 mm")),
    Sketcher.Constraint("DistanceX", 21, 3, -1, 1, Q("30.338137 mm")),
])
pad2 = body.newObject("PartDesign::Pad", "Pad001")
pad2.Profile = sketch3
pad2.Length = 10.22

# Sketch on XZ plane
sketch4 = body.newObject("Sketcher::SketchObject", "Sketch003")
sketch4.AttachmentSupport = (doc.getObject("XZ_Plane"), [""])
sketch4.MapMode = "FlatFace"
sketch4.AttachmentOffset = App.Placement(Vector(0, 0, -10.22), App.Rotation())
sketch4.addGeometry([
    Part.Circle(Vector(-42.5, 0, 0), Vector(0, 0, 1), 1.9),
    Part.Circle(Vector(21.2, -36.8, 0), Vector(0, 0, 1), 1.9),
    Part.Circle(Vector(21.2, 36.8, 0), Vector(0, 0, 1), 1.9),
], False)
sketch4.addConstraint([
    Sketcher.Constraint("Equal", 0, 1),
    Sketcher.Constraint("Equal", 1, 2),
    Sketcher.Constraint("Symmetric", 1, 3, 2, 3, -1),
    Sketcher.Constraint("PointOnObject", 0, 3, -1),
    Sketcher.Constraint("Diameter", 0, Q("3.85 mm")),
    Sketcher.Constraint("DistanceX", 0, 3, -1, 1, Q("42.5 mm")),
    Sketcher.Constraint("DistanceX", -1, 1, 1, 3, Q("21.25 mm")),
    Sketcher.Constraint("DistanceY", 1, 3, -1, 1, Q("36.80608 mm")),
])
pocket2 = body.newObject("PartDesign::Pocket", "Pocket001")
pocket2.Profile = sketch4
pocket2.Length = 4
pocket2.Reversed = True

doc.recompute()
